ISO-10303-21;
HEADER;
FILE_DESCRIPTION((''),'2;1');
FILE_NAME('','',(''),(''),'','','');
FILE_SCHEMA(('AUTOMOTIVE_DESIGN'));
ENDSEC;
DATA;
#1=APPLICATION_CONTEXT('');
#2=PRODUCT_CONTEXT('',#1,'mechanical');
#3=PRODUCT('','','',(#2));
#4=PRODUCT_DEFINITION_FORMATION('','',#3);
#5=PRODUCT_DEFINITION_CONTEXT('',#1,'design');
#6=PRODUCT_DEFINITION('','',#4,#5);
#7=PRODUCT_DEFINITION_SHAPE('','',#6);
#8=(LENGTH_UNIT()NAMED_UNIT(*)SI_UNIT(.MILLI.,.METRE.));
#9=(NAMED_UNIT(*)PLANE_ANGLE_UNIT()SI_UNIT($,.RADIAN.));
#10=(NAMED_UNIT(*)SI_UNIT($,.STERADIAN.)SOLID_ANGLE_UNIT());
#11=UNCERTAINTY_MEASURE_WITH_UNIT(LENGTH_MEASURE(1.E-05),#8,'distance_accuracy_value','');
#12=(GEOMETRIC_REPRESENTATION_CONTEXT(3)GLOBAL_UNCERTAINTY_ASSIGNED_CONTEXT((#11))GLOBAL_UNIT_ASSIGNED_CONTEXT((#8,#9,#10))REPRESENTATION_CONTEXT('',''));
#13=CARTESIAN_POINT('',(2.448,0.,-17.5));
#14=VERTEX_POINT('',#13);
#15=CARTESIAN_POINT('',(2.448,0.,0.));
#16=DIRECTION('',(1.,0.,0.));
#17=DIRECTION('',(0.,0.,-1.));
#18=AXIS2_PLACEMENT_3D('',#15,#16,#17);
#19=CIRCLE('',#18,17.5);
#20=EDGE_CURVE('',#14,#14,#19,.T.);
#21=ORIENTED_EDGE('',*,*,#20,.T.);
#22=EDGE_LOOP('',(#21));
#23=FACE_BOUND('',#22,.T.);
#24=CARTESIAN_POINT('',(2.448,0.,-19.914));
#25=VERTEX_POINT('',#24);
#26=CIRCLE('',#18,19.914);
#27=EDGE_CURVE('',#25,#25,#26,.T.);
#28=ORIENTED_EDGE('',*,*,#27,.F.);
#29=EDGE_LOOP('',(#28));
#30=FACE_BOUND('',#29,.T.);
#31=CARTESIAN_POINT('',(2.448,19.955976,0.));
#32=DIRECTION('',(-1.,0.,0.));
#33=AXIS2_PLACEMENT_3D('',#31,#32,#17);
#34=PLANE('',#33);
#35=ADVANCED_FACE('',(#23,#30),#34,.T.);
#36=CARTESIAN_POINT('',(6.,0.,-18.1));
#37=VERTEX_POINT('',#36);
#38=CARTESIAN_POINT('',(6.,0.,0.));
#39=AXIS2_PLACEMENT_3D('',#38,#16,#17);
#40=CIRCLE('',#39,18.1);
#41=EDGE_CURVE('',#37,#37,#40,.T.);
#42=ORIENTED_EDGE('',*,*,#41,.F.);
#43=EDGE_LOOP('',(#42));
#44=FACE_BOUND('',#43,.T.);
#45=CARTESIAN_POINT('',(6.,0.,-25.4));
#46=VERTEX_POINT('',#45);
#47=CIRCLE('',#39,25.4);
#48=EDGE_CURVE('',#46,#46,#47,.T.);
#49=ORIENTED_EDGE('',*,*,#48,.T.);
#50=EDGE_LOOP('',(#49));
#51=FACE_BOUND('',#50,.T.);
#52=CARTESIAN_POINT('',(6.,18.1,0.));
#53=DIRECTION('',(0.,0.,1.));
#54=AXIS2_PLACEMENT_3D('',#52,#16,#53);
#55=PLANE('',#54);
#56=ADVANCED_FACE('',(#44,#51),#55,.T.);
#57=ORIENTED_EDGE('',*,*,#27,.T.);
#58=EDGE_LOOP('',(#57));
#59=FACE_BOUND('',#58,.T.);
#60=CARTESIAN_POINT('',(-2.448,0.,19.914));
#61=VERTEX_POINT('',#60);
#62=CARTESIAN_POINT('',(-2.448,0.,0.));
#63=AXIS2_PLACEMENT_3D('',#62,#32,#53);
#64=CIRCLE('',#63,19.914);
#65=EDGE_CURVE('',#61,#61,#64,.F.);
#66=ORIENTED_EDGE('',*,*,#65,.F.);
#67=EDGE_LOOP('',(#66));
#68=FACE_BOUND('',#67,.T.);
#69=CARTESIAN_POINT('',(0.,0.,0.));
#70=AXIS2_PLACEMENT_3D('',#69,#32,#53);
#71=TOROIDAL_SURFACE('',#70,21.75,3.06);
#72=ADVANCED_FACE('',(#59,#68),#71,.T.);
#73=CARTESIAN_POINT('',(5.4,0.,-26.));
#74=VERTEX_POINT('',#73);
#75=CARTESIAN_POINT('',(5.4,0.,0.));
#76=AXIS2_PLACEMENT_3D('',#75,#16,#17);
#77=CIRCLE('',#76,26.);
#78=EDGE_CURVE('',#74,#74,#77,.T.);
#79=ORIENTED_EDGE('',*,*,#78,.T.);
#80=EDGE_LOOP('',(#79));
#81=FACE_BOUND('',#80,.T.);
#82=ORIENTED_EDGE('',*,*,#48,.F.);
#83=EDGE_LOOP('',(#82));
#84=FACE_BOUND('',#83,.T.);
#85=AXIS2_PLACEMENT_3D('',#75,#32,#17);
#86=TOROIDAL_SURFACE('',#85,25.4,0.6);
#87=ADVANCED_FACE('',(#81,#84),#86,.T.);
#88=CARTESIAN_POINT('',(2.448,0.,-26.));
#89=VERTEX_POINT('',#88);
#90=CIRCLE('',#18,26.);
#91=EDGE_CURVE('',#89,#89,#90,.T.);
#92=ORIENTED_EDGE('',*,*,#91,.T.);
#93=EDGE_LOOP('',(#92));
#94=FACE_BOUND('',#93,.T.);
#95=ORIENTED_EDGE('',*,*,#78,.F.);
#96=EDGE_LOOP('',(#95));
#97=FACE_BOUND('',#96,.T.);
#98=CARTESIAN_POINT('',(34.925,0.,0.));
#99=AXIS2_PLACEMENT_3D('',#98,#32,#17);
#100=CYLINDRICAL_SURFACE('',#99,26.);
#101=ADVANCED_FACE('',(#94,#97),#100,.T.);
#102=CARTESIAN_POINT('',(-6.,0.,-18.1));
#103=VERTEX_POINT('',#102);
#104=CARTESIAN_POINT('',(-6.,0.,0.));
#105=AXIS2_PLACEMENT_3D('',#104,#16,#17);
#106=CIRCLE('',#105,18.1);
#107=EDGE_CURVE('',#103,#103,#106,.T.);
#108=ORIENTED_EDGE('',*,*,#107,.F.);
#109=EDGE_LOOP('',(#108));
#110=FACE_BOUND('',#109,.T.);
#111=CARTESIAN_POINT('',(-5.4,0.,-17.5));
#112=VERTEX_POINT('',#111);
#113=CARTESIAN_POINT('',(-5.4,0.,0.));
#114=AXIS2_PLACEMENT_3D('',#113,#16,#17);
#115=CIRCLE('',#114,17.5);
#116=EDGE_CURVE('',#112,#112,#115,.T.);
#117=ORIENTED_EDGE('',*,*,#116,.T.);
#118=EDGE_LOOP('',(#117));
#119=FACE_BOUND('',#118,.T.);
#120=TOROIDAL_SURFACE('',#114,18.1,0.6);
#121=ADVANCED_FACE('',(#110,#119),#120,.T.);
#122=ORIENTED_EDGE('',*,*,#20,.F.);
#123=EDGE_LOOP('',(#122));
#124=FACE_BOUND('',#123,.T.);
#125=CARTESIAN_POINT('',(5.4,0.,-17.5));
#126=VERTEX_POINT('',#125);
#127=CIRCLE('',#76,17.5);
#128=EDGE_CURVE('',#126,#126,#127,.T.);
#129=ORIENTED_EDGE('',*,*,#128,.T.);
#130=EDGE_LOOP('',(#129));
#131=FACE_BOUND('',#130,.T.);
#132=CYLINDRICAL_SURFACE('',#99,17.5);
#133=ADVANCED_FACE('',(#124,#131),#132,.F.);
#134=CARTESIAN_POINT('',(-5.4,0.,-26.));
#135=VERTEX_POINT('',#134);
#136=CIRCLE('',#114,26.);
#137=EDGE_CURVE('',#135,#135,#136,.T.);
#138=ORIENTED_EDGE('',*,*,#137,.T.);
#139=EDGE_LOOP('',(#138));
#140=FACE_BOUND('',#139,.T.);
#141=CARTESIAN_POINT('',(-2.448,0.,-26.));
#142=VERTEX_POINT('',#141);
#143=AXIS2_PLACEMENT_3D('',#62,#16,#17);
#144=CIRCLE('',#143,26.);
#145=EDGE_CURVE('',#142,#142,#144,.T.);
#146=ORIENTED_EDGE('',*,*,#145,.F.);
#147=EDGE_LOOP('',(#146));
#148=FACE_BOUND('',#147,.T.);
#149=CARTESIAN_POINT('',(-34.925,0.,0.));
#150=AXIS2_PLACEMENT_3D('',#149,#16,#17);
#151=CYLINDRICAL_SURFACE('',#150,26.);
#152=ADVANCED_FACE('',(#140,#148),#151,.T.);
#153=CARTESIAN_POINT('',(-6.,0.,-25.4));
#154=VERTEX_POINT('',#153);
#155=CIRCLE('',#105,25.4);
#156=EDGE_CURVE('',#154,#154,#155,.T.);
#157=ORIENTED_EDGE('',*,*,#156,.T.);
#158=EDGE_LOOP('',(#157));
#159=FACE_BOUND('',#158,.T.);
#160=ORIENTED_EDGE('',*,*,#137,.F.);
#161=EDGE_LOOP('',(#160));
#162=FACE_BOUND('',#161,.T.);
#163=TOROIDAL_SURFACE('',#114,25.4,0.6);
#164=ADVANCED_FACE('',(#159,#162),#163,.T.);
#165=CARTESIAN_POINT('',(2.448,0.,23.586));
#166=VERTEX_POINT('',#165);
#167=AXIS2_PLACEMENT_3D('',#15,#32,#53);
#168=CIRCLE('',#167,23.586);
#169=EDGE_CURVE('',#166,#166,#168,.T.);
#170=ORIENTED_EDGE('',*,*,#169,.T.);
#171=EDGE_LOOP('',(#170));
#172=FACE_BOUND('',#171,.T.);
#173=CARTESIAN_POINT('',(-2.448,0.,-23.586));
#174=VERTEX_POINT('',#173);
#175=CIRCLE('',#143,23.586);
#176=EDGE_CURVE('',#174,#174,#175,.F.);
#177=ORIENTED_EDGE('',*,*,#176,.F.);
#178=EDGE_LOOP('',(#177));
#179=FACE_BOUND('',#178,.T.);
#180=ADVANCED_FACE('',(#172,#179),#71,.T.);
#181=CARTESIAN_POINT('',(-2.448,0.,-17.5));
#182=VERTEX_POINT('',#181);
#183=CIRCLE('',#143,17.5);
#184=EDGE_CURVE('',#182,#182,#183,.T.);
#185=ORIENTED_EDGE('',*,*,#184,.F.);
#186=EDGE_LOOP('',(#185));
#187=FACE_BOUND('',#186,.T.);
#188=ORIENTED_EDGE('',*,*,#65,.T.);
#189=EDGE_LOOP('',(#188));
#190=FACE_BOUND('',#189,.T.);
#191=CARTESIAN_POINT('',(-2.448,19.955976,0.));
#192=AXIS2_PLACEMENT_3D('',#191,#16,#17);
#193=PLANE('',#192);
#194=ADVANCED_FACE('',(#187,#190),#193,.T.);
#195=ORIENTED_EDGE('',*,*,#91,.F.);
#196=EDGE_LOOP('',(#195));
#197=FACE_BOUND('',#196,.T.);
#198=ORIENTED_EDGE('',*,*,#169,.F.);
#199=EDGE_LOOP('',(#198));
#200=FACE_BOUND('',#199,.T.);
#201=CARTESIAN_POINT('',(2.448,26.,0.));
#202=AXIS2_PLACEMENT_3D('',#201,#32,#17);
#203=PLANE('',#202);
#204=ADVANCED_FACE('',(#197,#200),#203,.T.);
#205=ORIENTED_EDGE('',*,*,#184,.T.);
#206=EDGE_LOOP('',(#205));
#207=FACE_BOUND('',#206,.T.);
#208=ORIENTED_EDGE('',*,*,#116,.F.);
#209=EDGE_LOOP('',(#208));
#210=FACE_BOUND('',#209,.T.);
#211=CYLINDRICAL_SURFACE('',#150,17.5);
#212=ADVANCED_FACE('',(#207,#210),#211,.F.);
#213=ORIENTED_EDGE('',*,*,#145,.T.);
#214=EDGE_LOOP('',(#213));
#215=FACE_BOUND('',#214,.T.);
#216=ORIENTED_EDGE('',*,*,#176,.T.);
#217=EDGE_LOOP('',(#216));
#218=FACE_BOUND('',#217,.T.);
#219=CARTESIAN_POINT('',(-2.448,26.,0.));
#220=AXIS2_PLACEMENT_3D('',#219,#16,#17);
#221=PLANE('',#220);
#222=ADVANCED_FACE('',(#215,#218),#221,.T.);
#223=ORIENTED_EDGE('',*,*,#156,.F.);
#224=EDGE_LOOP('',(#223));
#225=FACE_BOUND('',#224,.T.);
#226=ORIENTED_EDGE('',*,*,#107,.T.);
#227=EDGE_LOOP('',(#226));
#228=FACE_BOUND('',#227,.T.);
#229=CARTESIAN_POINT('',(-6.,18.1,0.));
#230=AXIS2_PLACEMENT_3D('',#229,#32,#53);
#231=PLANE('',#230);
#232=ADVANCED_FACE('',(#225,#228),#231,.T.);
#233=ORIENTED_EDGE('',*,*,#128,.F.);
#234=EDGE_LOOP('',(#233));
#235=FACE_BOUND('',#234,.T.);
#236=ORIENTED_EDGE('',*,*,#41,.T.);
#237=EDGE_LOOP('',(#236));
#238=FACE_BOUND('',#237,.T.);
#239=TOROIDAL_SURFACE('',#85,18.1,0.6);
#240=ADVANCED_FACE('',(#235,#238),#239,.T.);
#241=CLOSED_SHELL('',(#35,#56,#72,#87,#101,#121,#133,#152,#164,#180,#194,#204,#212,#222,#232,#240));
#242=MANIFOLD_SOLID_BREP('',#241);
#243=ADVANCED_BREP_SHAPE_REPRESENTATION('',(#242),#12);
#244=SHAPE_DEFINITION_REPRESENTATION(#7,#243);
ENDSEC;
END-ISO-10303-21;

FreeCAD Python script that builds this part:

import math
import FreeCAD as App
import Part
import Sketcher

doc = App.newDocument("Part")
body = doc.addObject("PartDesign::Body", "Body")

sketch1 = body.newObject("Sketcher::SketchObject", "Sketch")
sketch1.AttachmentSupport = (doc.getObject("XY_Plane"), [""])
sketch1.MapMode = "FlatFace"
sketch1.addGeometry([
    Part.LineSegment(App.Vector(-2.4, 17.5, 0), App.Vector(-2.4, 20, 0)),
    Part.ArcOfCircle(Part.Circle(App.Vector(0, 21.8, 0), App.Vector(0, 0, 1), 3), math.radians(144), math.radians(216)),
    Part.LineSegment(App.Vector(-2.4, 23.5, 0), App.Vector(-2.4, 26, 0)),
    Part.LineSegment(App.Vector(-2.4, 26, 0), App.Vector(-5.4, 26, 0)),
    Part.ArcOfCircle(Part.Circle(App.Vector(-5.4, 25.4, 0), App.Vector(0, 0, 1), 0.6), math.radians(90), math.radians(180)),
    Part.LineSegment(App.Vector(-6, 25.4, 0), App.Vector(-6, 18.1, 0)),
    Part.ArcOfCircle(Part.Circle(App.Vector(-5.4, 18.1, 0), App.Vector(0, 0, 1), 0.6), math.radians(180), math.radians(270)),
    Part.LineSegment(App.Vector(-5.4, 17.5, 0), App.Vector(-2.4, 17.5, 0)),
], False)
sketch1.addConstraint([
    Sketcher.Constraint("Coincident", 0, 2, 1, 2),
    Sketcher.Constraint("Coincident", 1, 1, 2, 1),
    Sketcher.Constraint("Coincident", 2, 2, 3, 1),
    Sketcher.Constraint("Tangent", 3, 2, 4, 1),
    Sketcher.Constraint("Tangent", 4, 2, 5, 1),
    Sketcher.Constraint("Tangent", 5, 2, 6, 1),
    Sketcher.Constraint("Tangent", 6, 2, 7, 1),
    Sketcher.Constraint("Coincident", 7, 2, 0, 1),
    Sketcher.Constraint("Vertical", 0),
    Sketcher.Constraint("Vertical", 2),
    Sketcher.Constraint("Horizontal", 3),
    Sketcher.Constraint("Vertical", 5),
    Sketcher.Constraint("Horizontal", 7),
    Sketcher.Constraint("Equal", 4, 6),
    Sketcher.Constraint("PointOnObject", 1, 3, -2),
    Sketcher.Constraint("Vertical", 0, 2, 1, 1),
    Sketcher.Constraint("Equal", 0, 2),
    Sketcher.Constraint("Radius", 4, 0.6),
    Sketcher.Constraint("DistanceY", 5, 2, 5, 1, 7.3),
    Sketcher.Constraint("DistanceY", -1, 1, 2, 2, 26.0),
    Sketcher.Constraint("DistanceX", 4, 2, -1, 1, 6.0),
    Sketcher.Constraint("Radius", 1, 3.035),
    Sketcher.Constraint("DistanceX", 3, 2, 3, 1, 2.952),
])
revolution = body.newObject("PartDesign::Revolution", "Revolution")
revolution.Profile = sketch1
revolution.ReferenceAxis = (sketch1, ["H_Axis"])
revolution.Angle = 360

sketch2 = body.newObject("Sketcher::SketchObject", "Sketch001")
sketch2.AttachmentSupport = (doc.getObject("XY_Plane"), [""])
sketch2.MapMode = "FlatFace"
sketch2.addGeometry(Part.Circle(App.Vector(0, 21.8, 0), App.Vector(0, 0, 1), 3.1), False)
sketch2.addConstraint([
    Sketcher.Constraint("PointOnObject", 0, 3, -2),
    Sketcher.Constraint("Diameter", 0, 6.12),
    Sketcher.Constraint("DistanceY", -1, 1, 0, 3, 21.75),
])
revolution2 = body.newObject("PartDesign::Revolution", "Revolution001")
revolution2.Profile = sketch2
revolution2.ReferenceAxis = (sketch2, ["H_Axis"])
revolution2.Angle = 360
doc.recompute()

mirrored = body.newObject("PartDesign::Mirrored", "Mirrored")
mirrored.Originals = [revolution]
mirrored.MirrorPlane = (doc.getObject("YZ_Plane"), [""])
body.Tip = mirrored

doc.recompute()
